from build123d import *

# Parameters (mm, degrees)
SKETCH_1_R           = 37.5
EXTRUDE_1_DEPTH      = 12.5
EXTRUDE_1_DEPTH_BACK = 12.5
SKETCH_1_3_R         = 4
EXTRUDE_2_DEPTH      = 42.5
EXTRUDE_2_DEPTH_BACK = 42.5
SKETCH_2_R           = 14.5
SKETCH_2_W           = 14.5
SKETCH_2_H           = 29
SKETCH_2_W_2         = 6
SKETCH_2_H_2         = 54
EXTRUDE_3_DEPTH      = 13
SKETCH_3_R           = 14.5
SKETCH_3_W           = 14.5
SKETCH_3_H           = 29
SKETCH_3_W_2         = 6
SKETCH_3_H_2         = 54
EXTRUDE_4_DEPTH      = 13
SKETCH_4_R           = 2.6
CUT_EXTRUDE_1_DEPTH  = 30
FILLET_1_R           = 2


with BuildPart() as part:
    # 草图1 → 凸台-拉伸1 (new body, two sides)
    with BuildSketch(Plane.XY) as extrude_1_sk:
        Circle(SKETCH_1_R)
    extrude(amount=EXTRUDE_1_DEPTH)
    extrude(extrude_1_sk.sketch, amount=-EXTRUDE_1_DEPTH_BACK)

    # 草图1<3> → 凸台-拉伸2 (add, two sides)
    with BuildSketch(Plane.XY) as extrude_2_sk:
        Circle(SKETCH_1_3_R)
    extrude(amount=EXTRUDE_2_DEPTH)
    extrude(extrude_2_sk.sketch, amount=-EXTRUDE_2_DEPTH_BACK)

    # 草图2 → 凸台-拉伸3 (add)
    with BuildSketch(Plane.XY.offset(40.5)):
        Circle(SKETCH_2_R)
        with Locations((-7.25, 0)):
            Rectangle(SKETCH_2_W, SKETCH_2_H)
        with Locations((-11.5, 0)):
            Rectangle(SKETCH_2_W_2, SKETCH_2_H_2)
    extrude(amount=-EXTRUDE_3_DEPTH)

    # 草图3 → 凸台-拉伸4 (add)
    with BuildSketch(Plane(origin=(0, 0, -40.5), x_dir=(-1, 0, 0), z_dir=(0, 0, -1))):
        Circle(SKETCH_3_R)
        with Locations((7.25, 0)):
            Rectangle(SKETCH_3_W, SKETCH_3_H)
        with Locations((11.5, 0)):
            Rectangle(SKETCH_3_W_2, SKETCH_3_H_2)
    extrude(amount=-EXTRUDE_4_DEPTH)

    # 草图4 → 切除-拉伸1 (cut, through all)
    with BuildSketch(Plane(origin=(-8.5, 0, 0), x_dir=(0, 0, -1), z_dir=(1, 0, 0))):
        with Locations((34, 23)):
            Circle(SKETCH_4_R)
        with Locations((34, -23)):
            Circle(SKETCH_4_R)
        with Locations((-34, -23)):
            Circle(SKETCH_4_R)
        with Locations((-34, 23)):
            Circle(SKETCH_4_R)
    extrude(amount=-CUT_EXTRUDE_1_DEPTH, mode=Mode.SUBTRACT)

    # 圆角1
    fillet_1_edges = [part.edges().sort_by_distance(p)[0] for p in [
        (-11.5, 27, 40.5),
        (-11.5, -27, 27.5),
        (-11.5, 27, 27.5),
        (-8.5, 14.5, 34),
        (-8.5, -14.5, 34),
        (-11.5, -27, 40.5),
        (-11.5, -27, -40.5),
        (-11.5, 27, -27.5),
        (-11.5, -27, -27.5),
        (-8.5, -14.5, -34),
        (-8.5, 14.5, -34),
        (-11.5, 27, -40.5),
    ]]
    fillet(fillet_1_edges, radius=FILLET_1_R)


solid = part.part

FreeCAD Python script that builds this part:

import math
import FreeCAD as App
import Part
import Sketcher

V = App.Vector
Q = App.Units.Quantity


def edges_at(feature, points):
    """Names of the edges that pass closest to the given points."""
    edges = feature.Shape.Edges
    near = lambda p: min(range(len(edges)), key=lambda i: edges[i].distToShape(Part.Vertex(*p))[0])
    return sorted({f"Edge{near(p) + 1}" for p in points})

doc = App.newDocument("Part")
body = doc.addObject("PartDesign::Body", "Body")

# Sketch on XY plane
sketch1 = body.newObject("Sketcher::SketchObject", "Sketch")
sketch1.AttachmentSupport = (doc.getObject("XY_Plane"), [""])
sketch1.MapMode = "FlatFace"
sketch1.addGeometry(Part.Circle(V(0, 0, 0), V(0, 0, 1), 38), False)
sketch1.addConstraint(Sketcher.Constraint("Coincident", 0, 3, -1, 1))
sketch1.addConstraint(Sketcher.Constraint("Diameter", 0, Q("75 mm")))
pad1 = body.newObject("PartDesign::Pad", "Pad")
pad1.Profile = sketch1
pad1.Type = "TwoLengths"
pad1.Length = 12.5
pad1.Length2 = 12.5

# Sketch on XY plane
sketch2 = body.newObject("Sketcher::SketchObject", "Sketch001")
sketch2.AttachmentSupport = (doc.getObject("XY_Plane"), [""])
sketch2.MapMode = "FlatFace"
sketch2.addGeometry(Part.Circle(V(0, 0, 0), V(0, 0, 1), 4), False)
sketch2.addConstraint(Sketcher.Constraint("Coincident", 0, 3, -1, 1))
sketch2.addConstraint(Sketcher.Constraint("Diameter", 0, Q("8 mm")))
pad2 = body.newObject("PartDesign::Pad", "Pad001")
pad2.Profile = sketch2
pad2.Type = "TwoLengths"
pad2.Length = 42.5
pad2.Length2 = 42.5

# Sketch on XY plane
sketch3 = body.newObject("Sketcher::SketchObject", "Sketch002")
sketch3.AttachmentSupport = (doc.getObject("XY_Plane"), [""])
sketch3.MapMode = "FlatFace"
sketch3.AttachmentOffset = App.Placement(V(0, 0, 40.5), App.Rotation())
sketch3.addGeometry(Part.LineSegment(V(-8, -14, 0), V(0, -14, 0)), False)
sketch3.addGeometry(Part.ArcOfCircle(Part.Circle(V(0, 0, 0), V(0, 0, 1), 14), math.radians(-90), math.radians(90)), False)
sketch3.addGeometry(Part.LineSegment(V(0, 14, 0), V(-8, 14, 0)), False)
sketch3.addGeometry(Part.LineSegment(V(-8, 14, 0), V(-8, 27, 0)), False)
sketch3.addGeometry(Part.LineSegment(V(-8, 27, 0), V(-14, 27, 0)), False)
sketch3.addGeometry(Part.LineSegment(V(-14, 27, 0), V(-14, -27, 0)), False)
sketch3.addGeometry(Part.LineSegment(V(-14, -27, 0), V(-8, -27, 0)), False)
sketch3.addGeometry(Part.LineSegment(V(-8, -27, 0), V(-8, -14, 0)), False)
sketch3.addConstraint(Sketcher.Constraint("Tangent", 0, 2, 1, 1))
sketch3.addConstraint(Sketcher.Constraint("Tangent", 1, 2, 2, 1))
sketch3.addConstraint(Sketcher.Constraint("Coincident", 2, 2, 3, 1))
sketch3.addConstraint(Sketcher.Constraint("Coincident", 3, 2, 4, 1))
sketch3.addConstraint(Sketcher.Constraint("Coincident", 4, 2, 5, 1))
sketch3.addConstraint(Sketcher.Constraint("Coincident", 5, 2, 6, 1))
sketch3.addConstraint(Sketcher.Constraint("Coincident", 6, 2, 7, 1))
sketch3.addConstraint(Sketcher.Constraint("Coincident", 7, 2, 0, 1))
sketch3.addConstraint(Sketcher.Constraint("Horizontal", 0))
sketch3.addConstraint(Sketcher.Constraint("Horizontal", 2))
sketch3.addConstraint(Sketcher.Constraint("Vertical", 3))
sketch3.addConstraint(Sketcher.Constraint("Horizontal", 4))
sketch3.addConstraint(Sketcher.Constraint("Vertical", 5))
sketch3.addConstraint(Sketcher.Constraint("Horizontal", 6))
sketch3.addConstraint(Sketcher.Constraint("Vertical", 7))
sketch3.addConstraint(Sketcher.Constraint("Coincident", 1, 3, -1, 1))
sketch3.addConstraint(Sketcher.Constraint("Symmetric", 3, 2, 6, 2, -1))
sketch3.addConstraint(Sketcher.Constraint("Radius", 1, Q("14.5 mm")))
sketch3.addConstraint(Sketcher.Constraint("DistanceX", 4, 2, 4, 1, Q("6 mm")))
sketch3.addConstraint(Sketcher.Constraint("DistanceY", 5, 2, 5, 1, Q("54 mm")))
sketch3.addConstraint(Sketcher.Constraint("DistanceX", 0, 1, 0, 2, Q("8.5 mm")))
pad3 = body.newObject("PartDesign::Pad", "Pad002")
pad3.Profile = sketch3
pad3.Length = 13
pad3.Reversed = True

# Sketch on XY plane
sketch4 = body.newObject("Sketcher::SketchObject", "Sketch003")
sketch4.AttachmentSupport = (doc.getObject("XY_Plane"), [""])
sketch4.MapMode = "FlatFace"
sketch4.AttachmentOffset = App.Placement(V(0, 0, -40.5), App.Rotation())
sketch4.addGeometry(Part.ArcOfCircle(Part.Circle(V(0, 0, 0), V(0, 0, 1), 14), math.radians(-90), math.radians(90)), False)
sketch4.addGeometry(Part.LineSegment(V(0, -14, 0), V(-8, -14, 0)), False)
sketch4.addGeometry(Part.LineSegment(V(-8, -14, 0), V(-8, -27, 0)), False)
sketch4.addGeometry(Part.LineSegment(V(-8, -27, 0), V(-14, -27, 0)), False)
sketch4.addGeometry(Part.LineSegment(V(-14, -27, 0), V(-14, 27, 0)), False)
sketch4.addGeometry(Part.LineSegment(V(-14, 27, 0), V(-8, 27, 0)), False)
sketch4.addGeometry(Part.LineSegment(V(-8, 27, 0), V(-8, 14, 0)), False)
sketch4.addGeometry(Part.LineSegment(V(-8, 14, 0), V(0, 14, 0)), False)
sketch4.addConstraint(Sketcher.Constraint("Tangent", 0, 1, 1, 1))
sketch4.addConstraint(Sketcher.Constraint("Coincident", 1, 2, 2, 1))
sketch4.addConstraint(Sketcher.Constraint("Coincident", 2, 2, 3, 1))
sketch4.addConstraint(Sketcher.Constraint("Coincident", 3, 2, 4, 1))
sketch4.addConstraint(Sketcher.Constraint("Coincident", 4, 2, 5, 1))
sketch4.addConstraint(Sketcher.Constraint("Coincident", 5, 2, 6, 1))
sketch4.addConstraint(Sketcher.Constraint("Coincident", 6, 2, 7, 1))
sketch4.addConstraint(Sketcher.Constraint("Tangent", 7, 2, 0, 2))
sketch4.addConstraint(Sketcher.Constraint("Horizontal", 1))
sketch4.addConstraint(Sketcher.Constraint("Vertical", 2))
sketch4.addConstraint(Sketcher.Constraint("Horizontal", 3))
sketch4.addConstraint(Sketcher.Constraint("Vertical", 4))
sketch4.addConstraint(Sketcher.Constraint("Horizontal", 5))
sketch4.addConstraint(Sketcher.Constraint("Vertical", 6))
sketch4.addConstraint(Sketcher.Constraint("Horizontal", 7))
sketch4.addConstraint(Sketcher.Constraint("Coincident", 0, 3, -1, 1))
sketch4.addConstraint(Sketcher.Constraint("Symmetric", 2, 2, 5, 2, -1))
sketch4.addConstraint(Sketcher.Constraint("Radius", 0, Q("14.5 mm")))
sketch4.addConstraint(Sketcher.Constraint("DistanceX", 3, 2, 3, 1, Q("6 mm")))
sketch4.addConstraint(Sketcher.Constraint("DistanceY", 4, 1, 4, 2, Q("54 mm")))
sketch4.addConstraint(Sketcher.Constraint("DistanceX", 1, 2, 1, 1, Q("8.5 mm")))
pad4 = body.newObject("PartDesign::Pad", "Pad003")
pad4.Profile = sketch4
pad4.Length = 13

# Sketch on YZ plane
sketch5 = body.newObject("Sketcher::SketchObject", "Sketch004")
sketch5.AttachmentSupport = (doc.getObject("YZ_Plane"), [""])
sketch5.MapMode = "FlatFace"
sketch5.AttachmentOffset = App.Placement(V(0, 0, -8.5), App.Rotation())
sketch5.addGeometry(Part.Circle(V(23, -34, 0), V(0, 0, 1), 2.6), False)
sketch5.addGeometry(Part.Circle(V(-23, -34, 0), V(0, 0, 1), 2.6), False)
sketch5.addGeometry(Part.Circle(V(-23, 34, 0), V(0, 0, 1), 2.6), False)
sketch5.addGeometry(Part.Circle(V(23, 34, 0), V(0, 0, 1), 2.6), False)
sketch5.addConstraint(Sketcher.Constraint("Equal", 0, 1))
sketch5.addConstraint(Sketcher.Constraint("Equal", 1, 2))
sketch5.addConstraint(Sketcher.Constraint("Equal", 2, 3))
sketch5.addConstraint(Sketcher.Constraint("Symmetric", 0, 3, 2, 3, -1, 1))
sketch5.addConstraint(Sketcher.Constraint("Symmetric", 1, 3, 3, 3, -1, 1))
sketch5.addConstraint(Sketcher.Constraint("Symmetric", 0, 3, 1, 3, -2))
sketch5.addConstraint(Sketcher.Constraint("Diameter", 0, Q("5.2 mm")))
sketch5.addConstraint(Sketcher.Constraint("DistanceX", -1, 1, 0, 3, Q("23 mm")))
sketch5.addConstraint(Sketcher.Constraint("DistanceY", 0, 3, -1, 1, Q("34 mm")))
pocket1 = body.newObject("PartDesign::Pocket", "Pocket")
pocket1.Profile = sketch5
pocket1.Type = "ThroughAll"
doc.recompute()

fillet = body.newObject("PartDesign::Fillet", "Fillet")
fillet.Base = (pocket1, edges_at(pocket1, [
    (-11.5, 27, 40.5),
    (-11.5, -27, 27.5),
    (-11.5, 27, 27.5),
    (-8.5, 14.5, 34),
    (-8.5, -14.5, 34),
    (-11.5, -27, 40.5),
    (-11.5, -27, -40.5),
    (-11.5, 27, -27.5),
    (-11.5, -27, -27.5),
    (-8.5, -14.5, -34),
    (-8.5, 14.5, -34),
    (-11.5, 27, -40.5),
]))
fillet.Radius = 2

doc.recompute()
